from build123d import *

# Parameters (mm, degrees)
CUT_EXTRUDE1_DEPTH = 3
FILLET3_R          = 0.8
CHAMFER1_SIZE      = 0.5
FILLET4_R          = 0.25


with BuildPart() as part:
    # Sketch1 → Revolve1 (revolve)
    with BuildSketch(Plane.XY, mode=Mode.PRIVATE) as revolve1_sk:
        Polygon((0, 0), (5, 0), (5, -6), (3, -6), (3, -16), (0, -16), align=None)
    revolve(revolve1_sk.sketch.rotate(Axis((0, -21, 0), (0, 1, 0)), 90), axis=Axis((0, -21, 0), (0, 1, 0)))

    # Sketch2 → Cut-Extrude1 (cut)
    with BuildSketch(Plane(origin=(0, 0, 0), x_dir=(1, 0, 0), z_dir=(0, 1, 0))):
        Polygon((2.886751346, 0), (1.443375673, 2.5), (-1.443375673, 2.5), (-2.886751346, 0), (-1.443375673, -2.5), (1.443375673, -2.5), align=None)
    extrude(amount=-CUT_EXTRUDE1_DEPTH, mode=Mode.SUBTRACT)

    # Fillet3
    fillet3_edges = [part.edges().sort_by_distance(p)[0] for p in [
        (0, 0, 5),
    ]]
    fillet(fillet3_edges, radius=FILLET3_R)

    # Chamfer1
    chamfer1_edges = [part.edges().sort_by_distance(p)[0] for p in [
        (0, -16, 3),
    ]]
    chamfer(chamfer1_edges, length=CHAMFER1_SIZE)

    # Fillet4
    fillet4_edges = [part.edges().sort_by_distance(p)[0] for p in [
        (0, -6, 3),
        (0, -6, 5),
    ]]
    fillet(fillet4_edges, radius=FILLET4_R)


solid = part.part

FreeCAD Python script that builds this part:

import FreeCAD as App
import Part
import Sketcher

V = App.Vector
Q = App.Units.Quantity


def edges_at(feature, points):
    """Names of the edges that pass closest to the given points."""
    edges = feature.Shape.Edges
    near = lambda p: min(range(len(edges)), key=lambda i: edges[i].distToShape(Part.Vertex(*p))[0])
    return sorted({f"Edge{near(p) + 1}" for p in points})


def add_polygon(sketch, points):
    """Adds a closed chain of lines whose ends are joined by coincident constraints."""
    first, n = sketch.GeometryCount, len(points)
    for a, b in zip(points, points[1:] + points[:1]):
        sketch.addGeometry(Part.LineSegment(App.Vector(*a, 0), App.Vector(*b, 0)), False)
    for i in range(n):
        sketch.addConstraint(Sketcher.Constraint("Coincident", first + i, 2, first + (i + 1) % n, 1))

doc = App.newDocument("Part")
body = doc.addObject("PartDesign::Body", "Body")

sketch1 = body.newObject("Sketcher::SketchObject", "Sketch")
sketch1.AttachmentSupport = (doc.getObject("XY_Plane"), [""])
sketch1.MapMode = "FlatFace"
add_polygon(sketch1, [(5, 0), (0, 0), (0, -16), (3, -16), (3, -6), (5, -6)])
sketch1.addConstraint([
    Sketcher.Constraint("Horizontal", 0),
    Sketcher.Constraint("Vertical", 1),
    Sketcher.Constraint("Horizontal", 2),
    Sketcher.Constraint("Vertical", 3),
    Sketcher.Constraint("Horizontal", 4),
    Sketcher.Constraint("Vertical", 5),
    Sketcher.Constraint("Coincident", 0, 2, -1, 1),
    Sketcher.Constraint("DistanceX", 0, 2, 0, 1, Q("5 mm")),
    Sketcher.Constraint("DistanceX", 2, 1, 2, 2, Q("3 mm")),
    Sketcher.Constraint("DistanceY", 1, 2, 1, 1, Q("16 mm")),
    Sketcher.Constraint("DistanceY", 3, 1, 3, 2, Q("10 mm")),
])
revolution = body.newObject("PartDesign::Revolution", "Revolution")
revolution.Profile = sketch1
revolution.ReferenceAxis = (sketch1, ["V_Axis"])
revolution.Angle = 360

sketch2 = body.newObject("Sketcher::SketchObject", "Sketch001")
sketch2.AttachmentSupport = (doc.getObject("XZ_Plane"), [""])
sketch2.MapMode = "FlatFace"
add_polygon(sketch2, [(2.9, 0), (1.4, -2.5), (-1.4, -2.5), (-2.9, 0), (-1.4, 2.5), (1.4, 2.5)])
sketch2.addConstraint([
    Sketcher.Constraint("Horizontal", 1),
    Sketcher.Constraint("Horizontal", 4),
    Sketcher.Constraint("Symmetric", 0, 2, 3, 2, -1, 1),
    Sketcher.Constraint("Symmetric", 2, 2, 5, 2, -1, 1),
    Sketcher.Constraint("PointOnObject", 2, 2, -1),
    Sketcher.Constraint("Parallel", 2, 5),
    Sketcher.Constraint("Vertical", 1, 2, 3, 2),
    Sketcher.Constraint("Angle", 0, Q("-120 deg")),
    Sketcher.Constraint("DistanceY", 1, 2, 3, 2, Q("5 mm")),
    Sketcher.Constraint("DistanceX", 1, 2, 1, 1, Q("2.886751 mm")),
])
pocket1 = body.newObject("PartDesign::Pocket", "Pocket")
pocket1.Profile = sketch2
pocket1.Length = 3
pocket1.Reversed = True
doc.recompute()

fillet = body.newObject("PartDesign::Fillet", "Fillet")
fillet.Base = (pocket1, edges_at(pocket1, [(0, 0, 5)]))
fillet.Radius = 0.8
doc.recompute()

chamfer = body.newObject("PartDesign::Chamfer", "Chamfer")
chamfer.Base = (fillet, edges_at(fillet, [(0, -16, 3)]))
chamfer.Size = 0.5
doc.recompute()

fillet2 = body.newObject("PartDesign::Fillet", "Fillet001")
fillet2.Base = (chamfer, edges_at(chamfer, [(0, -6, 3), (0, -6, 5)]))
fillet2.Radius = 0.25

doc.recompute()
